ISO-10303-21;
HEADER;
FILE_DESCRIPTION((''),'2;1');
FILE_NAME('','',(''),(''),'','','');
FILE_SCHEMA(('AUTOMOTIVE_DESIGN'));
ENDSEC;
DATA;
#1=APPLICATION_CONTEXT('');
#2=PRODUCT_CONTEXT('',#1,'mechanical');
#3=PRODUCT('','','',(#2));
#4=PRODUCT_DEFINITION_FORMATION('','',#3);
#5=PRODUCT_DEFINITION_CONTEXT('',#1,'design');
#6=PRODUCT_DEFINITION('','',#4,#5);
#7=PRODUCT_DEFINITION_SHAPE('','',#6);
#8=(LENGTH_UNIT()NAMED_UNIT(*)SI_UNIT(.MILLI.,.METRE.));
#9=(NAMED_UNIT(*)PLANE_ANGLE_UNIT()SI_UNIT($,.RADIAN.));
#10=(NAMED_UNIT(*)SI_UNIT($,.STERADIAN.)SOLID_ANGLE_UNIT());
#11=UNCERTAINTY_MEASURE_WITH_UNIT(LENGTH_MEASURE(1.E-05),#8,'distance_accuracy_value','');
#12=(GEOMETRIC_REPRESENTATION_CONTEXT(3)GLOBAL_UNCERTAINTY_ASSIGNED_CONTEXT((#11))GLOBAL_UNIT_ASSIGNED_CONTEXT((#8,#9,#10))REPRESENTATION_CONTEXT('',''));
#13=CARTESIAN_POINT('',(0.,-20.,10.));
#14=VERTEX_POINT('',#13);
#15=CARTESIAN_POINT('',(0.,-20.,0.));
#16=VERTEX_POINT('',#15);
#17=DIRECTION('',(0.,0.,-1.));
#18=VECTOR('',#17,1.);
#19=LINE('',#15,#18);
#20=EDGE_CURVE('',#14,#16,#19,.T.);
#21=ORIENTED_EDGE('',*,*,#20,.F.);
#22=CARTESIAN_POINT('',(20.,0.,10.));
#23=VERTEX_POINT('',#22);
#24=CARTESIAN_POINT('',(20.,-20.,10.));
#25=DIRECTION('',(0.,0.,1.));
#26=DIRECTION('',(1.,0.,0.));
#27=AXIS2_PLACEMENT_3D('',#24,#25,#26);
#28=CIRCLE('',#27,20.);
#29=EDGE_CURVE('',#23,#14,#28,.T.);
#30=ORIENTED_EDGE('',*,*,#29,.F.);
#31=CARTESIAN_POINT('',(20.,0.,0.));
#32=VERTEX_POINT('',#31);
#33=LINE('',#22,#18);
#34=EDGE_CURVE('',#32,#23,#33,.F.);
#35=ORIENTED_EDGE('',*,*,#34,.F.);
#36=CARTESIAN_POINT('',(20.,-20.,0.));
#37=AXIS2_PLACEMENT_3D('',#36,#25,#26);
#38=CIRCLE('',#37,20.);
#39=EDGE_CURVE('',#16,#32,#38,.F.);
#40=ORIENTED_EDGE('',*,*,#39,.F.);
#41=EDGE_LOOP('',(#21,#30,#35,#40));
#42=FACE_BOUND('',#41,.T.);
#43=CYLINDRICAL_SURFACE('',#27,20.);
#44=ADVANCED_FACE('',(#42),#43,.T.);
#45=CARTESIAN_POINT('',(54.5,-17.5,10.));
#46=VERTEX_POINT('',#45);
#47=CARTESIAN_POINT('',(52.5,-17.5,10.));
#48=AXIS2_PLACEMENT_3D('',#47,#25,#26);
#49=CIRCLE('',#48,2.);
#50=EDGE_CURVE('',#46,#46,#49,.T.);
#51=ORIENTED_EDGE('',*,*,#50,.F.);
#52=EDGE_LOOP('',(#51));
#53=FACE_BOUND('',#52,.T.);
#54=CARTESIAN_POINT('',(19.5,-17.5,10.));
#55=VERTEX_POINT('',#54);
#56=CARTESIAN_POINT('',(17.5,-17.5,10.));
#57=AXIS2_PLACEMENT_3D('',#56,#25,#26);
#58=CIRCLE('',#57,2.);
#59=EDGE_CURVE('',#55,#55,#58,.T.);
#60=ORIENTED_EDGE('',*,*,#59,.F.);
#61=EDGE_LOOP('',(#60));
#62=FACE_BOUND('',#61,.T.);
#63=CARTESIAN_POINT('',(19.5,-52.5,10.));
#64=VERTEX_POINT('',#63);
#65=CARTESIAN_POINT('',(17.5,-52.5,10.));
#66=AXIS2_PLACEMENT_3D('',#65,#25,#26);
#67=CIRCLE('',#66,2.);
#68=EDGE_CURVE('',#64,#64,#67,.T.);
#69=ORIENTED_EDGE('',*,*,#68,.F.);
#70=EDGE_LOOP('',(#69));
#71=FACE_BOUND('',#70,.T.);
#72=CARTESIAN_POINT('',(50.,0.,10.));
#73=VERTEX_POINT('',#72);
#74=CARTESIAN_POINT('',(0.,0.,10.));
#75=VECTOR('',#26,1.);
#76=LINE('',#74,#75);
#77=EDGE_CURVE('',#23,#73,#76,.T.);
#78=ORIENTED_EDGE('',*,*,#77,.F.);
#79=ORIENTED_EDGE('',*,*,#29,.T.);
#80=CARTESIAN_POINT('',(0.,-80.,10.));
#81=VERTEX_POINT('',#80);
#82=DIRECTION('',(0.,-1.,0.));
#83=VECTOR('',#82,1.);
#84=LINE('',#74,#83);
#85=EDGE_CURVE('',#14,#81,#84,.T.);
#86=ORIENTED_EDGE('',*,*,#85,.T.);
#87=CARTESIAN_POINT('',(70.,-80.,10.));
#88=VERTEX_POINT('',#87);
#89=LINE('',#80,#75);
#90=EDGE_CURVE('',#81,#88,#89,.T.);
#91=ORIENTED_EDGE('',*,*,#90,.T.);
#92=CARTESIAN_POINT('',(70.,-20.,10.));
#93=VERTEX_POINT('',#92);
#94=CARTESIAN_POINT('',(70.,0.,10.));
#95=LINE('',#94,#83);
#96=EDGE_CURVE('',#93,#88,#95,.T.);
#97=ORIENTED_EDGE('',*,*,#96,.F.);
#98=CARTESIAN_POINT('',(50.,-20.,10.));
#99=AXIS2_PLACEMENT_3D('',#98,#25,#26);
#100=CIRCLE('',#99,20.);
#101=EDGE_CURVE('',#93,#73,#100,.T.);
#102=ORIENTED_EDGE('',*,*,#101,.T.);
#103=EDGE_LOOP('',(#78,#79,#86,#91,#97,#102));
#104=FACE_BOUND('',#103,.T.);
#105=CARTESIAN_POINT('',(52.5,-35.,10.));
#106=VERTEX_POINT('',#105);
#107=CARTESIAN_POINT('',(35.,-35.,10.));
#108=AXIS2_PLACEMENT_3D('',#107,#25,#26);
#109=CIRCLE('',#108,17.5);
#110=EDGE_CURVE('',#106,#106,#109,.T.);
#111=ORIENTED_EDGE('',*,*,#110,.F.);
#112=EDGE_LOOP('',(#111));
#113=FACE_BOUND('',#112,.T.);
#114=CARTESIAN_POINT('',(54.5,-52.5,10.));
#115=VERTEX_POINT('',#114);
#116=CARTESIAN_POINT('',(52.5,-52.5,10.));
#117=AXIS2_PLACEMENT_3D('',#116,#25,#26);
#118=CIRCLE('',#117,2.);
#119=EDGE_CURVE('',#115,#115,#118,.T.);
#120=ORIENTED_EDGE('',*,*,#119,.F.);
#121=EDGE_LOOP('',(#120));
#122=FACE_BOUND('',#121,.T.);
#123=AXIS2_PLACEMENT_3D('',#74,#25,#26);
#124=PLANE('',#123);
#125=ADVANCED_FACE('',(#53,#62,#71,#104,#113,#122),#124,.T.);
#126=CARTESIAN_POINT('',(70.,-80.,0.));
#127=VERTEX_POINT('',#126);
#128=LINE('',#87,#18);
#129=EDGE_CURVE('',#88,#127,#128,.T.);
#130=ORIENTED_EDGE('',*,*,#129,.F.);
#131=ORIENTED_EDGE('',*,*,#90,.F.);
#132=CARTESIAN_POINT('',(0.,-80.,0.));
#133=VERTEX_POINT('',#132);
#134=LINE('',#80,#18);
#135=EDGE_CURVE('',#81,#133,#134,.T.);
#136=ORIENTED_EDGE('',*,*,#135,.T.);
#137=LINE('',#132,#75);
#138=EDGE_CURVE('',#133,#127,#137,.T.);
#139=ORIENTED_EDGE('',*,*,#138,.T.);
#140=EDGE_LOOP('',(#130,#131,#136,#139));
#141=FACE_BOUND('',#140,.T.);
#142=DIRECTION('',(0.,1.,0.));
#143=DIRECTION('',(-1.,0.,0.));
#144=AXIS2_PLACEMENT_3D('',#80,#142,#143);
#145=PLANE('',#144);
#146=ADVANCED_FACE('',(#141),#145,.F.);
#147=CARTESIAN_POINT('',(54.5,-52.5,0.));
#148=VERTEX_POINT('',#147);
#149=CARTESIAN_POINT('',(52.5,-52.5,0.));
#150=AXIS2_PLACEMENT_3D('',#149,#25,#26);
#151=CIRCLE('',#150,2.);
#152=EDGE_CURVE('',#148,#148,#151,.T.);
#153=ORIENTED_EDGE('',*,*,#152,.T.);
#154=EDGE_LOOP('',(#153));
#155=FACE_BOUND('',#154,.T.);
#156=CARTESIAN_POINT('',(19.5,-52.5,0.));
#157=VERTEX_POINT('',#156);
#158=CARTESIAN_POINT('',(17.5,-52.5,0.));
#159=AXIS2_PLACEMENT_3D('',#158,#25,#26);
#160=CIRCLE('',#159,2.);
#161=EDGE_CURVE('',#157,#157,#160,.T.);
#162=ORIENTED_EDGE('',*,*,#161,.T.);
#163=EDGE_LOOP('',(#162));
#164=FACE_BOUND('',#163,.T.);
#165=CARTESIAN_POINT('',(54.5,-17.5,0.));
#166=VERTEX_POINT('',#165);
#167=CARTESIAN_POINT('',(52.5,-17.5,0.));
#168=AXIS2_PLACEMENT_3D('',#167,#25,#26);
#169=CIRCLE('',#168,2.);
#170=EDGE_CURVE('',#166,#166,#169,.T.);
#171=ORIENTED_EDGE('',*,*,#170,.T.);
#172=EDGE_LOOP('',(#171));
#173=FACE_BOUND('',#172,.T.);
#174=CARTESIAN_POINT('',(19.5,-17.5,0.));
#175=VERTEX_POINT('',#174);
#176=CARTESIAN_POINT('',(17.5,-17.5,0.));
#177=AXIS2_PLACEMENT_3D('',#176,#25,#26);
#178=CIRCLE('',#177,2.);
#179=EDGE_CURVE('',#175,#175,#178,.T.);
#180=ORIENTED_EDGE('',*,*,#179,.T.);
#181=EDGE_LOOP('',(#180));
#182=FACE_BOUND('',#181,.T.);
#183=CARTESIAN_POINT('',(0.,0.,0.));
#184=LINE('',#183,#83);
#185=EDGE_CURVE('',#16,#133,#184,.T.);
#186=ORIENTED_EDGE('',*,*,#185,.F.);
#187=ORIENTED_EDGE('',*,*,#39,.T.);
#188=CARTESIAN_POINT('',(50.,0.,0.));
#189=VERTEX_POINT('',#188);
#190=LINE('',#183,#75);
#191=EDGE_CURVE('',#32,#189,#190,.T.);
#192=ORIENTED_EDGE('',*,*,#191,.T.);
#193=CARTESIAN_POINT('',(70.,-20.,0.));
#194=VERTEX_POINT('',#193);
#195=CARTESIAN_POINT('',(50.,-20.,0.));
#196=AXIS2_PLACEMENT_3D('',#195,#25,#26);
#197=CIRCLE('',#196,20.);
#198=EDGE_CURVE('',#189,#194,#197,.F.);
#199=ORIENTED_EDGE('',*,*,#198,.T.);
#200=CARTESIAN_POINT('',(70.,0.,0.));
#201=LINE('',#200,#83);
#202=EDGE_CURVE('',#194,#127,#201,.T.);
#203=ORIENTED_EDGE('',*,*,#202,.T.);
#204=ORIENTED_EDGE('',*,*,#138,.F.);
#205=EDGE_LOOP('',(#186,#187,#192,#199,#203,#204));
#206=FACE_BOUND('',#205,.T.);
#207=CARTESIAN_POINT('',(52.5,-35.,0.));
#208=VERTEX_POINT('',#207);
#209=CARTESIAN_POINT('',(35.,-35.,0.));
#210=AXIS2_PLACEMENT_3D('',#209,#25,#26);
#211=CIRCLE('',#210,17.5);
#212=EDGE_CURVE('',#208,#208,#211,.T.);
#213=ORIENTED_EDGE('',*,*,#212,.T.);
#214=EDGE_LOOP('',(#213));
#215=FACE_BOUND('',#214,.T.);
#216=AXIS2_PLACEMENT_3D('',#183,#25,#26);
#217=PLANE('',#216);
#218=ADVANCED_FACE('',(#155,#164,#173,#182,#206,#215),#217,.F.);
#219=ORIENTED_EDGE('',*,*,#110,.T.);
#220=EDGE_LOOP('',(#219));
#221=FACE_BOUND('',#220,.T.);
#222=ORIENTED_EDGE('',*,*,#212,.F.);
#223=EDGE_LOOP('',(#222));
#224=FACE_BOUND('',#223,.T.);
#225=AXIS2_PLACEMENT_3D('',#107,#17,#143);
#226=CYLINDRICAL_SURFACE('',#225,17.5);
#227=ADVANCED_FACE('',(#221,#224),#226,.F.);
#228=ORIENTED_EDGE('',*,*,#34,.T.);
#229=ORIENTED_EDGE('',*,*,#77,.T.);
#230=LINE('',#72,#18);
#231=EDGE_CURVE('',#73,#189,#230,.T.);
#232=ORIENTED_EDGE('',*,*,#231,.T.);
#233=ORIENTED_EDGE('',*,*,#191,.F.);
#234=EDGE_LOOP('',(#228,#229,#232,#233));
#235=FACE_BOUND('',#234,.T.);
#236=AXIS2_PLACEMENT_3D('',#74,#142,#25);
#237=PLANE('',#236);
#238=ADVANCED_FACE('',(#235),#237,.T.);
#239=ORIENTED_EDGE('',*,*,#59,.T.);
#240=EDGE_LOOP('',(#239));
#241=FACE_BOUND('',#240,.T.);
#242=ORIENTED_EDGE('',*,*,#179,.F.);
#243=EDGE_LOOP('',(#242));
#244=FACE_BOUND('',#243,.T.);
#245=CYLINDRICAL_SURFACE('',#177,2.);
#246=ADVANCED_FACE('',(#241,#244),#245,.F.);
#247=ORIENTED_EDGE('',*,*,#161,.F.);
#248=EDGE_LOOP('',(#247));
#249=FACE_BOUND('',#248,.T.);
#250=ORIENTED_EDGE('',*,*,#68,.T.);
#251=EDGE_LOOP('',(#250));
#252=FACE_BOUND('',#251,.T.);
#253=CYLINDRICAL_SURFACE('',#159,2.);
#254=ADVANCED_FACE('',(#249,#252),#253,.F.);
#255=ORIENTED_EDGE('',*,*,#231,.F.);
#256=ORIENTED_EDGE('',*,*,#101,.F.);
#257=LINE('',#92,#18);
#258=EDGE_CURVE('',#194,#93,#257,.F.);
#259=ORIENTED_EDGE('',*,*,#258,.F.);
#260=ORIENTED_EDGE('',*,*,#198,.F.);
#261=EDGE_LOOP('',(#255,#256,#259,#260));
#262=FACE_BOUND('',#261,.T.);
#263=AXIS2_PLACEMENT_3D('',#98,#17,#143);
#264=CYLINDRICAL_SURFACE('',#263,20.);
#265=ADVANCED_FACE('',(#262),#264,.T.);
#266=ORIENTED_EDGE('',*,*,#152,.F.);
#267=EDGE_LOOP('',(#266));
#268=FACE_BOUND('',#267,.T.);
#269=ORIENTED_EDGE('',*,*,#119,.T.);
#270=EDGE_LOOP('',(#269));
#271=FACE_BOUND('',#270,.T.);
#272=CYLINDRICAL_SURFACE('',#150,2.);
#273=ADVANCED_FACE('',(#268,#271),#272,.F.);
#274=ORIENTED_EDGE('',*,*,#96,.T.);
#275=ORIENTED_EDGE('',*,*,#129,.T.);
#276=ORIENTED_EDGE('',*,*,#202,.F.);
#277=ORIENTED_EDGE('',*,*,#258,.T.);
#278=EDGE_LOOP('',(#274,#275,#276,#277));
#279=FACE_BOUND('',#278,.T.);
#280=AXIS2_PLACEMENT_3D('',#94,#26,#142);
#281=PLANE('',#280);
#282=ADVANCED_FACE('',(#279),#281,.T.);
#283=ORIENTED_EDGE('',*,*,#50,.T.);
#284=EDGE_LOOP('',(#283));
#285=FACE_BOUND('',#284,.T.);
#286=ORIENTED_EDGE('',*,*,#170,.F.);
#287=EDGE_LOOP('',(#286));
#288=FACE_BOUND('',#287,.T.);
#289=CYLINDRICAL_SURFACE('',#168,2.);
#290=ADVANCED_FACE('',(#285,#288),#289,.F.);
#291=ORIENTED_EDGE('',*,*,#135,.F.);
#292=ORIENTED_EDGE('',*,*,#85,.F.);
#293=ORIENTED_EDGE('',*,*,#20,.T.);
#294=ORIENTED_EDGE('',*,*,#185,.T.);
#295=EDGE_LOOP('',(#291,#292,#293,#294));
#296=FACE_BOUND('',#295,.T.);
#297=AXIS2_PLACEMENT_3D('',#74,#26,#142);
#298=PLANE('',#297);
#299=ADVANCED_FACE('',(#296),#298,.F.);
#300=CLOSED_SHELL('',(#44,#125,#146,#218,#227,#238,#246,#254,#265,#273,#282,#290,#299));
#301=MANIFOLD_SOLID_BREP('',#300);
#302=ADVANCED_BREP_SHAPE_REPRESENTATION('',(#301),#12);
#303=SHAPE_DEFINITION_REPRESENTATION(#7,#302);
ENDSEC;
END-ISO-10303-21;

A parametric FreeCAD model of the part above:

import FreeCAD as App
import Part
import Sketcher
from FreeCAD import Vector


def edges_at(feature, points):
    """Names of the edges that pass closest to the given points."""
    edges = feature.Shape.Edges
    near = lambda p: min(range(len(edges)), key=lambda i: edges[i].distToShape(Part.Vertex(*p))[0])
    return sorted({f"Edge{near(p) + 1}" for p in points})


def add_polygon(sketch, points):
    """Adds a closed chain of lines whose ends are joined by coincident constraints."""
    first, n = sketch.GeometryCount, len(points)
    for a, b in zip(points, points[1:] + points[:1]):
        sketch.addGeometry(Part.LineSegment(App.Vector(*a, 0), App.Vector(*b, 0)), False)
    for i in range(n):
        sketch.addConstraint(Sketcher.Constraint("Coincident", first + i, 2, first + (i + 1) % n, 1))

doc = App.newDocument("Part")
body = doc.addObject("PartDesign::Body", "Body")

# Sketch on XY plane
sketch1 = doc.addObject("Sketcher::SketchObject", "Sketch")
body.addObject(sketch1)
sketch1.AttachmentSupport = (doc.XY_Plane, [""])
sketch1.MapMode = "FlatFace"
add_polygon(sketch1, [(0, 0), (0, -80), (70, -80), (70, 0)])  # lines 0-3
sketch1.addGeometry(Part.Circle(Vector(35, -35, 0), Vector(0, 0, 1), 18), False)  # 4
sketch1.addConstraint([
    Sketcher.Constraint("Vertical", 0),
    Sketcher.Constraint("Horizontal", 1),
    Sketcher.Constraint("Vertical", 2),
    Sketcher.Constraint("Horizontal", 3),
    Sketcher.Constraint("Coincident", 3, 2, -1, 1),
    Sketcher.Constraint("Diameter", 4, 35.0),
    Sketcher.Constraint("DistanceX", 1, 1, 1, 2, 70.0),
    Sketcher.Constraint("DistanceY", 0, 2, 0, 1, 80.0),
    Sketcher.Constraint("DistanceX", -1, 1, 4, 3, 35.0),
    Sketcher.Constraint("DistanceY", 4, 3, -1, 1, 35.0),
])
pad1 = doc.addObject("PartDesign::Pad", "Pad")
body.addObject(pad1)
pad1.Profile = sketch1
pad1.Length = 10
doc.recompute()

fillet = doc.addObject("PartDesign::Fillet", "Fillet")
body.addObject(fillet)
fillet.Base = (pad1, edges_at(pad1, [(0, 0, 5), (70, 0, 5)]))
fillet.Radius = 20

# Sketch on XY plane
sketch2 = doc.addObject("Sketcher::SketchObject", "Sketch001")
body.addObject(sketch2)
sketch2.AttachmentSupport = (doc.XY_Plane, [""])
sketch2.MapMode = "FlatFace"
sketch2.AttachmentOffset = App.Placement(Vector(0, 0, 10), App.Rotation())
sketch2.addGeometry([
    Part.Circle(Vector(17.5, -17.5, 0), Vector(0, 0, 1), 2),
    Part.Circle(Vector(52.5, -17.5, 0), Vector(0, 0, 1), 2),
    Part.Circle(Vector(52.5, -52.5, 0), Vector(0, 0, 1), 2),
    Part.Circle(Vector(17.5, -52.5, 0), Vector(0, 0, 1), 2),
], False)
sketch2.addConstraint([
    Sketcher.Constraint("Equal", 0, 1),
    Sketcher.Constraint("Equal", 1, 2),
    Sketcher.Constraint("Equal", 2, 3),
    Sketcher.Constraint("Horizontal", 0, 3, 1, 3),
    Sketcher.Constraint("Horizontal", 2, 3, 3, 3),
    Sketcher.Constraint("Vertical", 1, 3, 2, 3),
    Sketcher.Constraint("Vertical", 0, 3, 3, 3),
    Sketcher.Constraint("Diameter", 0, 4.0),
    Sketcher.Constraint("DistanceX", 0, 3, 1, 3, 35.0),
    Sketcher.Constraint("DistanceY", 2, 3, 1, 3, 35.0),
    Sketcher.Constraint("DistanceX", -1, 1, 0, 3, 17.5),
    Sketcher.Constraint("DistanceY", 0, 3, -1, 1, 17.5),
])
pocket1 = doc.addObject("PartDesign::Pocket", "Pocket")
body.addObject(pocket1)
pocket1.Profile = sketch2
pocket1.Length = 10

doc.recompute()
